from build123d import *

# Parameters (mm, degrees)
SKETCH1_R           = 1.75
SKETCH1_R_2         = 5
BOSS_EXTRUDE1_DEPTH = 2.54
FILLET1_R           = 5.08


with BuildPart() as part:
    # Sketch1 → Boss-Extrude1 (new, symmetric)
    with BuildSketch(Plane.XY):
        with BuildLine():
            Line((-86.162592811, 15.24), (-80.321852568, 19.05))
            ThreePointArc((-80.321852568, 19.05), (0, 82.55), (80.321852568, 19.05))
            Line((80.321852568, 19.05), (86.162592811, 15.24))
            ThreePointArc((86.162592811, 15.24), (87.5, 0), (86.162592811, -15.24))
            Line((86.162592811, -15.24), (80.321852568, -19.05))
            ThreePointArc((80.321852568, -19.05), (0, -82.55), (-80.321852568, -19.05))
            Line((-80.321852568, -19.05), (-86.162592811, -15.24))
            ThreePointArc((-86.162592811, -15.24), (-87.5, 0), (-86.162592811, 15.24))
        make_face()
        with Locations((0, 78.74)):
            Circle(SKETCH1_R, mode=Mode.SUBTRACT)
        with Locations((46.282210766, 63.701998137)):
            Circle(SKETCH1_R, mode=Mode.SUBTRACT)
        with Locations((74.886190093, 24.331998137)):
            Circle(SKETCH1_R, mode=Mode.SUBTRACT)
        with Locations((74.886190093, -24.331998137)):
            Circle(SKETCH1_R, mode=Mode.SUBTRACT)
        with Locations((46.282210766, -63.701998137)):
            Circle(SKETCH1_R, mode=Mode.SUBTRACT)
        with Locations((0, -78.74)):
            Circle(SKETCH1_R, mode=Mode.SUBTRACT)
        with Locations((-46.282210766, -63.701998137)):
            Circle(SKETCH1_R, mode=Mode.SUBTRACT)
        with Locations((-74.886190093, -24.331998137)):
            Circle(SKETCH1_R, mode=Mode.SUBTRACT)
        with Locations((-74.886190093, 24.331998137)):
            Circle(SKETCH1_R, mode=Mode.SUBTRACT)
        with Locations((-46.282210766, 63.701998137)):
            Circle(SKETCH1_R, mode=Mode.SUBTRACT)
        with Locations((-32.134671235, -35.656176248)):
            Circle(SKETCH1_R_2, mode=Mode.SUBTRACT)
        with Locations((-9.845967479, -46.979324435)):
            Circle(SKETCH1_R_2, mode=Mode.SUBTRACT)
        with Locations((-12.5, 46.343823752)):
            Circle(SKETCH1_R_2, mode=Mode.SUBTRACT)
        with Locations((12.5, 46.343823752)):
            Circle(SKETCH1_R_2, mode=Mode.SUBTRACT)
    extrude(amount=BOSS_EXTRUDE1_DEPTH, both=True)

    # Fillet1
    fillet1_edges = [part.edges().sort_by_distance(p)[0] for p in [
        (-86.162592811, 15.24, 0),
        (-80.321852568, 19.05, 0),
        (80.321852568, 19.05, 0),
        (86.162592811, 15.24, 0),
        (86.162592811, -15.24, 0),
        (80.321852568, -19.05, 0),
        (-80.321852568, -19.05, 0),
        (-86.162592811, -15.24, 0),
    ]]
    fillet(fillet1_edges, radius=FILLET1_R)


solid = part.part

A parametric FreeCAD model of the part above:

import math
import FreeCAD as App
import Part
import Sketcher
Q = App.Units.Quantity


def edges_at(feature, points):
    """Names of the edges that pass closest to the given points."""
    edges = feature.Shape.Edges
    near = lambda p: min(range(len(edges)), key=lambda i: edges[i].distToShape(Part.Vertex(*p))[0])
    return sorted({f"Edge{near(p) + 1}" for p in points})

doc = App.newDocument("Part")
body = doc.addObject("PartDesign::Body", "Body")

sketch1 = body.newObject("Sketcher::SketchObject", "Sketch")
sketch1.AttachmentSupport = (doc.getObject("XY_Plane"), [""])
sketch1.MapMode = "FlatFace"
sketch1.addGeometry(Part.LineSegment(App.Vector(-80.321853, 19.05, 0), App.Vector(-86.162593, 15.24, 0)), False)
sketch1.addGeometry(Part.ArcOfCircle(Part.Circle(App.Vector(0, 0, 0), App.Vector(0, 0, 1), 87.5), math.radians(169.969556), math.radians(190.030444)), False)
sketch1.addGeometry(Part.LineSegment(App.Vector(-86.162593, -15.24, 0), App.Vector(-80.321853, -19.05, 0)), False)
sketch1.addGeometry(Part.ArcOfCircle(Part.Circle(App.Vector(0, 0, 0), App.Vector(0, 0, 1), 82.55), math.radians(-166.657636), math.radians(-13.342364)), False)
sketch1.addGeometry(Part.LineSegment(App.Vector(80.321853, -19.05, 0), App.Vector(86.162593, -15.24, 0)), False)
sketch1.addGeometry(Part.ArcOfCircle(Part.Circle(App.Vector(0, 0, 0), App.Vector(0, 0, 1), 87.5), math.radians(-10.030444), math.radians(10.030444)), False)
sketch1.addGeometry(Part.LineSegment(App.Vector(86.162593, 15.24, 0), App.Vector(80.321853, 19.05, 0)), False)
sketch1.addGeometry(Part.ArcOfCircle(Part.Circle(App.Vector(0, 0, 0), App.Vector(0, 0, 1), 82.55), math.radians(13.342364), math.radians(166.657636)), False)
sketch1.addGeometry(Part.Circle(App.Vector(46.282211, -63.701998, 0), App.Vector(0, 0, 1), 1.75), False)
sketch1.addGeometry(Part.Circle(App.Vector(74.88619, -24.331998, 0), App.Vector(0, 0, 1), 1.75), False)
sketch1.addGeometry(Part.Circle(App.Vector(0, -78.74, 0), App.Vector(0, 0, 1), 1.75), False)
sketch1.addGeometry(Part.Circle(App.Vector(-9.845967, -46.979324, 0), App.Vector(0, 0, 1), 5), False)
sketch1.addGeometry(Part.Circle(App.Vector(-46.282211, -63.701998, 0), App.Vector(0, 0, 1), 1.75), False)
sketch1.addGeometry(Part.Circle(App.Vector(-32.134671, -35.656176, 0), App.Vector(0, 0, 1), 5), False)
sketch1.addGeometry(Part.Circle(App.Vector(-74.88619, -24.331998, 0), App.Vector(0, 0, 1), 1.75), False)
sketch1.addGeometry(Part.Circle(App.Vector(74.88619, 24.331998, 0), App.Vector(0, 0, 1), 1.75), False)
sketch1.addGeometry(Part.Circle(App.Vector(46.282211, 63.701998, 0), App.Vector(0, 0, 1), 1.75), False)
sketch1.addGeometry(Part.Circle(App.Vector(12.5, 46.343824, 0), App.Vector(0, 0, 1), 5), False)
sketch1.addGeometry(Part.Circle(App.Vector(-74.88619, 24.331998, 0), App.Vector(0, 0, 1), 1.75), False)
sketch1.addGeometry(Part.Circle(App.Vector(-12.5, 46.343824, 0), App.Vector(0, 0, 1), 5), False)
sketch1.addGeometry(Part.Circle(App.Vector(0, 78.74, 0), App.Vector(0, 0, 1), 1.75), False)
sketch1.addGeometry(Part.Circle(App.Vector(-46.282211, 63.701998, 0), App.Vector(0, 0, 1), 1.75), False)
sketch1.addConstraint(Sketcher.Constraint("Coincident", 0, 2, 1, 1))
sketch1.addConstraint(Sketcher.Constraint("Coincident", 1, 2, 2, 1))
sketch1.addConstraint(Sketcher.Constraint("Coincident", 2, 2, 3, 1))
sketch1.addConstraint(Sketcher.Constraint("Coincident", 3, 2, 4, 1))
sketch1.addConstraint(Sketcher.Constraint("Coincident", 4, 2, 5, 1))
sketch1.addConstraint(Sketcher.Constraint("Coincident", 5, 2, 6, 1))
sketch1.addConstraint(Sketcher.Constraint("Coincident", 6, 2, 7, 1))
sketch1.addConstraint(Sketcher.Constraint("Coincident", 7, 2, 0, 1))
sketch1.addConstraint(Sketcher.Constraint("Coincident", 1, 3, -1, 1))
sketch1.addConstraint(Sketcher.Constraint("Coincident", 3, 3, -1, 1))
sketch1.addConstraint(Sketcher.Constraint("Coincident", 5, 3, -1, 1))
sketch1.addConstraint(Sketcher.Constraint("Coincident", 7, 3, -1, 1))
sketch1.addConstraint(Sketcher.Constraint("Equal", 1, 5))
sketch1.addConstraint(Sketcher.Constraint("Equal", 3, 7))
sketch1.addConstraint(Sketcher.Constraint("Equal", 8, 9))
sketch1.addConstraint(Sketcher.Constraint("Equal", 9, 10))
sketch1.addConstraint(Sketcher.Constraint("Equal", 10, 12))
sketch1.addConstraint(Sketcher.Constraint("Equal", 11, 13))
sketch1.addConstraint(Sketcher.Constraint("Equal", 12, 14))
sketch1.addConstraint(Sketcher.Constraint("Equal", 14, 15))
sketch1.addConstraint(Sketcher.Constraint("Equal", 15, 16))
sketch1.addConstraint(Sketcher.Constraint("Equal", 13, 17))
sketch1.addConstraint(Sketcher.Constraint("Equal", 16, 18))
sketch1.addConstraint(Sketcher.Constraint("Equal", 17, 19))
sketch1.addConstraint(Sketcher.Constraint("Equal", 18, 20))
sketch1.addConstraint(Sketcher.Constraint("Equal", 20, 21))
sketch1.addConstraint(Sketcher.Constraint("Symmetric", 14, 3, 15, 3, -1, 1))
sketch1.addConstraint(Sketcher.Constraint("Symmetric", 12, 3, 16, 3, -1, 1))
sketch1.addConstraint(Sketcher.Constraint("Symmetric", 9, 3, 18, 3, -1, 1))
sketch1.addConstraint(Sketcher.Constraint("Symmetric", 10, 3, 20, 3, -1, 1))
sketch1.addConstraint(Sketcher.Constraint("Symmetric", 8, 3, 21, 3, -1, 1))
sketch1.addConstraint(Sketcher.Constraint("Symmetric", 8, 3, 12, 3, -2))
sketch1.addConstraint(Sketcher.Constraint("Symmetric", 9, 3, 14, 3, -2))
sketch1.addConstraint(Sketcher.Constraint("Symmetric", 17, 3, 19, 3, -2))
sketch1.addConstraint(Sketcher.Constraint("PointOnObject", 10, 3, -2))
sketch1.addConstraint(Sketcher.Constraint("Parallel", 0, 4))
sketch1.addConstraint(Sketcher.Constraint("Parallel", 2, 6))
sketch1.addConstraint(Sketcher.Constraint("Horizontal", 2, 2, 3, 2))
sketch1.addConstraint(Sketcher.Constraint("Horizontal", 1, 2, 4, 2))
sketch1.addConstraint(Sketcher.Constraint("Horizontal", 0, 2, 5, 2))
sketch1.addConstraint(Sketcher.Constraint("Vertical", 0, 2, 1, 2))
sketch1.addConstraint(Sketcher.Constraint("Diameter", 11, Q("10 mm")))
sketch1.addConstraint(Sketcher.Constraint("Diameter", 8, Q("3.5 mm")))
sketch1.addConstraint(Sketcher.Constraint("Radius", 1, Q("87.5 mm")))
sketch1.addConstraint(Sketcher.Constraint("Radius", 3, Q("82.55 mm")))
sketch1.addConstraint(Sketcher.Constraint("DistanceX", 19, 3, 17, 3, Q("25 mm")))
sketch1.addConstraint(Sketcher.Constraint("DistanceY", 3, 2, 6, 2, Q("38.1 mm")))
sketch1.addConstraint(Sketcher.Constraint("DistanceY", 10, 3, -1, 1, Q("78.74 mm")))
sketch1.addConstraint(Sketcher.Constraint("DistanceY", -1, 1, 0, 2, Q("15.24 mm")))
sketch1.addConstraint(Sketcher.Constraint("DistanceY", 8, 3, 9, 3, Q("39.37 mm")))
sketch1.addConstraint(Sketcher.Constraint("DistanceY", 8, 3, -1, 1, Q("63.701998 mm")))
sketch1.addConstraint(Sketcher.Constraint("DistanceX", -1, 1, 8, 3, Q("46.282211 mm")))
sketch1.addConstraint(Sketcher.Constraint("DistanceX", -1, 1, 9, 3, Q("74.88619 mm")))
sketch1.addConstraint(Sketcher.Constraint("DistanceX", 13, 3, -1, 1, Q("32.134671 mm")))
sketch1.addConstraint(Sketcher.Constraint("DistanceY", 11, 3, 13, 3, Q("11.323148 mm")))
sketch1.addConstraint(Sketcher.Constraint("DistanceY", 12, 3, 13, 3, Q("28.045822 mm")))
sketch1.addConstraint(Sketcher.Constraint("DistanceX", 11, 3, -1, 1, Q("9.845967 mm")))
sketch1.addConstraint(Sketcher.Constraint("DistanceY", -1, 1, 17, 3, Q("46.343824 mm")))
pad1 = body.newObject("PartDesign::Pad", "Pad")
pad1.Profile = sketch1
pad1.Length = 5.08
pad1.Midplane = True
doc.recompute()

fillet = body.newObject("PartDesign::Fillet", "Fillet")
fillet.Base = (pad1, edges_at(pad1, [
    (-86.163, 15.24, 0),
    (-80.322, 19.05, 0),
    (80.322, 19.05, 0),
    (86.163, 15.24, 0),
    (86.163, -15.24, 0),
    (80.322, -19.05, 0),
    (-80.322, -19.05, 0),
    (-86.163, -15.24, 0),
]))
fillet.Radius = 5.08

doc.recompute()
